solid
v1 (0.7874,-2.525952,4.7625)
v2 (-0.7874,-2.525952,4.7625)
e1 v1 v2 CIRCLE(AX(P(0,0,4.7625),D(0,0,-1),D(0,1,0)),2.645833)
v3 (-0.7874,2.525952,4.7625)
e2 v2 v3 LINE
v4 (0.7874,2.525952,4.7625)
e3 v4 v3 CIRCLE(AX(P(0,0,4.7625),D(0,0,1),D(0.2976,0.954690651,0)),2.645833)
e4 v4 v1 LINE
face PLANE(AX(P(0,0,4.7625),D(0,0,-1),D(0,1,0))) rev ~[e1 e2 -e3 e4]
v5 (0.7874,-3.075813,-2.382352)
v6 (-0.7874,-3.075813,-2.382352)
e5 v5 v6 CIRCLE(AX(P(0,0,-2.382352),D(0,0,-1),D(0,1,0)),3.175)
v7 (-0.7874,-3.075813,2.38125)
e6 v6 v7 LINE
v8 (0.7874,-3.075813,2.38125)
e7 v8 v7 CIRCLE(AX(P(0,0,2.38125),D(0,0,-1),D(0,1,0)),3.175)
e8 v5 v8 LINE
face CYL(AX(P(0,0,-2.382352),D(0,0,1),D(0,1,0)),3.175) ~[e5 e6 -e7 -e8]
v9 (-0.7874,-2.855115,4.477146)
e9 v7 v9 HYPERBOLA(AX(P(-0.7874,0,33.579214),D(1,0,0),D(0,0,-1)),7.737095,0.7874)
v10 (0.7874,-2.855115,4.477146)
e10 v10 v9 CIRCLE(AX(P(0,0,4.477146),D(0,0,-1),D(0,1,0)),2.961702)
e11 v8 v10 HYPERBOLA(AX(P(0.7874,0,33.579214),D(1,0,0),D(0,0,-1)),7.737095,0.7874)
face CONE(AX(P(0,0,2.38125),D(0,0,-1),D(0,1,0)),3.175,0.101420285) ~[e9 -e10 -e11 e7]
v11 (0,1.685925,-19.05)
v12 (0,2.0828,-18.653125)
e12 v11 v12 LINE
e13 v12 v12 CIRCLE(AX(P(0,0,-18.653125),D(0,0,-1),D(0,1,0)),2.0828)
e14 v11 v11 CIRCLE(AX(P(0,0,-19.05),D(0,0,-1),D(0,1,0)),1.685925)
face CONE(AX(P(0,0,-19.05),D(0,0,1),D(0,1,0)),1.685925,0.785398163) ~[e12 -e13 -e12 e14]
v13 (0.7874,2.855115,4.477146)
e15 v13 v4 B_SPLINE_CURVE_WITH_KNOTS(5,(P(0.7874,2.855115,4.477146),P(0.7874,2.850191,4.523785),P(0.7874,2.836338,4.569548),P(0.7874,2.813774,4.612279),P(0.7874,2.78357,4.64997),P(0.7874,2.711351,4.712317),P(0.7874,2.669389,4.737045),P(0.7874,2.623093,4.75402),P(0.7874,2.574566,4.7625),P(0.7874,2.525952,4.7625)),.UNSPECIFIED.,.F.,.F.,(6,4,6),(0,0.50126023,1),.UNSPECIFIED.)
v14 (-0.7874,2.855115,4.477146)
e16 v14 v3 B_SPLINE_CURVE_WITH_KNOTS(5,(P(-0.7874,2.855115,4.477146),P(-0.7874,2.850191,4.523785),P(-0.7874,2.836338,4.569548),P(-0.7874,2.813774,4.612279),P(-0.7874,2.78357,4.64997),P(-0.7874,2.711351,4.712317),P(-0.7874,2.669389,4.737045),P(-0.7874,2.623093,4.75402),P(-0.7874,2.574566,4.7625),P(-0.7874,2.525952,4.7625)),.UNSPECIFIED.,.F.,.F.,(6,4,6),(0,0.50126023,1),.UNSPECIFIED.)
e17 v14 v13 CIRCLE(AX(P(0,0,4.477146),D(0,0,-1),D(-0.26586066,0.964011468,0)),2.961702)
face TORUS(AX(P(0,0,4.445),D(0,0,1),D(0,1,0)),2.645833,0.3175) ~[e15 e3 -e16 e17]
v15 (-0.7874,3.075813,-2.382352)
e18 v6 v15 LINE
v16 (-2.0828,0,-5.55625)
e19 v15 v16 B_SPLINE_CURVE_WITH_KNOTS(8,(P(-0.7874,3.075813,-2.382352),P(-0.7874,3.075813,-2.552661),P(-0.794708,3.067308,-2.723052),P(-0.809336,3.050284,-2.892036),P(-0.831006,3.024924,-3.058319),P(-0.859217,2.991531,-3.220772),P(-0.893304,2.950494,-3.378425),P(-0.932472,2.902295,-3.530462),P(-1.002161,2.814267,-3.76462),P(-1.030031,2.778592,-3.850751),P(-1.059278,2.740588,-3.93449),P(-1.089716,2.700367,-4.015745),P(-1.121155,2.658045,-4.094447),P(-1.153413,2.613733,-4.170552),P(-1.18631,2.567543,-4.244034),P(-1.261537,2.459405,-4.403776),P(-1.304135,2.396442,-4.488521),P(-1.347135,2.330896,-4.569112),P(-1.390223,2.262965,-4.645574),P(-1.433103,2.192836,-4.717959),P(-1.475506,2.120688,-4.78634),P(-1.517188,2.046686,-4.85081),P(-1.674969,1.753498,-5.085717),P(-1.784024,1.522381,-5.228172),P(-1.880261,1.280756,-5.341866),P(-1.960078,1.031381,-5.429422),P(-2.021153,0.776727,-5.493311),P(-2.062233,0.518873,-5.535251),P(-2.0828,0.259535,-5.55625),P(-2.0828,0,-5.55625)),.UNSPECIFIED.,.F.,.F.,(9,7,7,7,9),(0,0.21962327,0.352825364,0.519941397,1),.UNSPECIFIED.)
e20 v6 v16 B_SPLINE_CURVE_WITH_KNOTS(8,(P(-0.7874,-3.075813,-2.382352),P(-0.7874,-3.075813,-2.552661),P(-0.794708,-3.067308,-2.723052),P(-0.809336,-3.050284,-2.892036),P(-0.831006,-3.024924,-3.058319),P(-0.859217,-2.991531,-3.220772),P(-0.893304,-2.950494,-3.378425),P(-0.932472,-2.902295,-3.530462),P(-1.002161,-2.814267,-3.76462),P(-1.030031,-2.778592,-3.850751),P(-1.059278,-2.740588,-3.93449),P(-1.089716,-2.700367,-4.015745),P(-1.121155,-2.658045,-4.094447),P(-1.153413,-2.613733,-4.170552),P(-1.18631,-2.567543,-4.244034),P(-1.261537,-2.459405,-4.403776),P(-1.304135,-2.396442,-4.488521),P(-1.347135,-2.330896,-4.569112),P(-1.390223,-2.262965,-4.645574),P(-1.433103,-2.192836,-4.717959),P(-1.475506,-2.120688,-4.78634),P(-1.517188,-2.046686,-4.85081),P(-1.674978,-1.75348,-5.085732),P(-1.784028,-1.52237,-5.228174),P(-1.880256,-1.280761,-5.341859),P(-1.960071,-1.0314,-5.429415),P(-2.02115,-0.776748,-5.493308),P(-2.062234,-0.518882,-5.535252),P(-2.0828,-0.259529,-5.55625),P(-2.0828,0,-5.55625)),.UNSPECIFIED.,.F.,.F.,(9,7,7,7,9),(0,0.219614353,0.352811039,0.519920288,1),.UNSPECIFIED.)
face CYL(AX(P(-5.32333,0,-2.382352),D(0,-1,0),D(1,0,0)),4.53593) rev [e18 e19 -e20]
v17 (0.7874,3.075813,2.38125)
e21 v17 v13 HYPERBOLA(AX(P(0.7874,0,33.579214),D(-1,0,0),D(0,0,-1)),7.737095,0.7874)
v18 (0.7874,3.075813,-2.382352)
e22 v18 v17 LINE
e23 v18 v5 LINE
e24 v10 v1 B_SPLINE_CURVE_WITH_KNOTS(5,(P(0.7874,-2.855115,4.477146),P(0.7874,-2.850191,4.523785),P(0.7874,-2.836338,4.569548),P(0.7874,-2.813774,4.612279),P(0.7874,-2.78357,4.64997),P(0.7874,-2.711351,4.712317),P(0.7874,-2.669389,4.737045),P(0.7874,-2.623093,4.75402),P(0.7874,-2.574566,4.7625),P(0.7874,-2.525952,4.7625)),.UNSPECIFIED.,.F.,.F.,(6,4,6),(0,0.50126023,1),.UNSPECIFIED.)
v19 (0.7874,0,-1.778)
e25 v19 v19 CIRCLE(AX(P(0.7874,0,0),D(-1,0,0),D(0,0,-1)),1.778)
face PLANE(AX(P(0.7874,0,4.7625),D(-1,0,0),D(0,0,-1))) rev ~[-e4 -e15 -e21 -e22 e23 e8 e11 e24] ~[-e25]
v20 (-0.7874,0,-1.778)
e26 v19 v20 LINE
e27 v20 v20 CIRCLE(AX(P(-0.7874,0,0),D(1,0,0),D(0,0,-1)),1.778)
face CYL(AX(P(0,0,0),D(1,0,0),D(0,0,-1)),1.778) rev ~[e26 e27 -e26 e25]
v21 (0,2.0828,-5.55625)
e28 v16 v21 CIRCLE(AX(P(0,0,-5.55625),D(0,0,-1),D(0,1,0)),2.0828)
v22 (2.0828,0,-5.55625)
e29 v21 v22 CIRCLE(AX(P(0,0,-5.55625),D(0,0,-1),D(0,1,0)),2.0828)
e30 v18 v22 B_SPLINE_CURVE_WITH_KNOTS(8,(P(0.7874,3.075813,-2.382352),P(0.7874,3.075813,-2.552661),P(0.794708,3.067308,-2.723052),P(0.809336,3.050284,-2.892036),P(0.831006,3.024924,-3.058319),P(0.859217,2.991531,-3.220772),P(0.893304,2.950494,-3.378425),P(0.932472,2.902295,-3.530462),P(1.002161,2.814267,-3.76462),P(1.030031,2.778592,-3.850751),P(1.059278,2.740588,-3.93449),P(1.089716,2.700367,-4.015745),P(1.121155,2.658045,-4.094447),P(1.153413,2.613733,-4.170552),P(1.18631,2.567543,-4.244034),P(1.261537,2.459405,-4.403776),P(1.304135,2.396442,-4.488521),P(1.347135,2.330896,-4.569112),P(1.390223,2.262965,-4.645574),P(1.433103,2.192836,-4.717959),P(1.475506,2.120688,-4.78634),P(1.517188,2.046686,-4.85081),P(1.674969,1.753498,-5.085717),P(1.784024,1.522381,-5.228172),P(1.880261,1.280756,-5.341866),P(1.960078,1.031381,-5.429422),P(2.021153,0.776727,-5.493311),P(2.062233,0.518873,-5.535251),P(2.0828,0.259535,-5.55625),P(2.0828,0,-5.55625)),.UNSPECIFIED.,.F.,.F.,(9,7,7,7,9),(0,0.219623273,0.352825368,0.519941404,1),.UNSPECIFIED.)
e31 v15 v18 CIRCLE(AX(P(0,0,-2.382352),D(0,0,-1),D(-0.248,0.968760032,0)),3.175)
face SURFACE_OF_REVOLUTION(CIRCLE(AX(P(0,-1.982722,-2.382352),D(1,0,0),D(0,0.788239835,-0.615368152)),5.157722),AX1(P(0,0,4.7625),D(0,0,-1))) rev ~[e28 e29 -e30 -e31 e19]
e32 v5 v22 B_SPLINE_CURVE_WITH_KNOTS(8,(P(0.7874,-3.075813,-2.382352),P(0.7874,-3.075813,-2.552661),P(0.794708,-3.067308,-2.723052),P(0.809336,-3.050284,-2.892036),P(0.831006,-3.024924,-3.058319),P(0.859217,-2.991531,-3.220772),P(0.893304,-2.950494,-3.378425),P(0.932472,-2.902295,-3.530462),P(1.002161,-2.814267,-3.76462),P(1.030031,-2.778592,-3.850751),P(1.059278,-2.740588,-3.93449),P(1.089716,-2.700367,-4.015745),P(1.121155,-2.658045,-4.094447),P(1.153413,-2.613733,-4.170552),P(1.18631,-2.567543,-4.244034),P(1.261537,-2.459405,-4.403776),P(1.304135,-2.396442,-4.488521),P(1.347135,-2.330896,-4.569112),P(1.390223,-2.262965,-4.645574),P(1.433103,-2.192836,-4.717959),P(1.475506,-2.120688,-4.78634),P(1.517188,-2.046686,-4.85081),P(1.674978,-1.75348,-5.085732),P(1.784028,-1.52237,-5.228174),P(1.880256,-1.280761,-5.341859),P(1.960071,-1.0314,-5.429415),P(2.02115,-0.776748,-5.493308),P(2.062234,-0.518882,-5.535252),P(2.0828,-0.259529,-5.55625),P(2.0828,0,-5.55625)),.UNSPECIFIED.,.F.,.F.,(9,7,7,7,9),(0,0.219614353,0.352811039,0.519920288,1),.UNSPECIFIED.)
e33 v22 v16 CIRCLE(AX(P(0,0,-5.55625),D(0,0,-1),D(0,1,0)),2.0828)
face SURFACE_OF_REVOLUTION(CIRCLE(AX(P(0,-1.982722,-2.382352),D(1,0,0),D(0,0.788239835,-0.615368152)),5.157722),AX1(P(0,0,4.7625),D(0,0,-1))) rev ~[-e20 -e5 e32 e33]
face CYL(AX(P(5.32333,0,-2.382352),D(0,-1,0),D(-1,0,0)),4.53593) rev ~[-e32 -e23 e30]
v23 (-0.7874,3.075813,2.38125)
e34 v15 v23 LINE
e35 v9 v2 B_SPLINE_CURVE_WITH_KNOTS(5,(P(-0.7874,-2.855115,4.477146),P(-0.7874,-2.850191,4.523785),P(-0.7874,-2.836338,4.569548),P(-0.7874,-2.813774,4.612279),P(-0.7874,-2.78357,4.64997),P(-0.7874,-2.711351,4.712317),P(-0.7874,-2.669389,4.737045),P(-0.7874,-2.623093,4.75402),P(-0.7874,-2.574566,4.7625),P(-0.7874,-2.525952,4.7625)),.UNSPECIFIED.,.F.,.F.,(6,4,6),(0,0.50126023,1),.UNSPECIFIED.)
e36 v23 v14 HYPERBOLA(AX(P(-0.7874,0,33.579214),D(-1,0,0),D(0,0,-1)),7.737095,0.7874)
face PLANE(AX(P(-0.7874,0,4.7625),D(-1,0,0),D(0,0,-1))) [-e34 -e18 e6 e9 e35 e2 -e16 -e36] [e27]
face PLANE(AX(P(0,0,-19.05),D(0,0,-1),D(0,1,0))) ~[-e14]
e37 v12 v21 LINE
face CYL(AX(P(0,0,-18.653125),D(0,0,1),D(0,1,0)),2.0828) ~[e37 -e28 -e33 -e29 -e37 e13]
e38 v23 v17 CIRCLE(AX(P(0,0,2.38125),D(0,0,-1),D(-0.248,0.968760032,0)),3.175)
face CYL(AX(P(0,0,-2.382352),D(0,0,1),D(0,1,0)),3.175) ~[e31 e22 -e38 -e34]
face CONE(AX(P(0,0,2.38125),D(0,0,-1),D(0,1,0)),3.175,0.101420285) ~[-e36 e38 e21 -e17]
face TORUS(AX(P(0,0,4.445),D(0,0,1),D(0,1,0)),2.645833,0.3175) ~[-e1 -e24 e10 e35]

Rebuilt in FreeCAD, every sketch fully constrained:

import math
import FreeCAD as App
import Part
import Sketcher

V = App.Vector
Q = App.Units.Quantity

doc = App.newDocument("Part")
params = doc.addObject("Spreadsheet::Sheet", "Params")
for row, (alias, value) in enumerate([
    ("sketch1_height", "0.515625 in"),
    ("sketch1_height2", "0.9375 in"),
    ("revolution_angle", "360 deg"),
    ("sketch2_width", "0.125 in"),
    ("sketch2_width2", "0.074 in"),
    ("sketch2_height", "0.40625 in"),
    ("sketch3_diameter", "0.14 in"),
], start=1):
    params.set(f"A{row}", alias)
    params.set(f"B{row}", "=" + value)
    params.setAlias(f"B{row}", alias)

body = doc.addObject("PartDesign::Body", "Body")

sketch1 = body.newObject("Sketcher::SketchObject", "Sketch")
sketch1.AttachmentSupport = (doc.getObject("YZ_Plane"), [""])
sketch1.MapMode = "FlatFace"
sketch1.addGeometry([
    Part.LineSegment(V(0, -19.05, 0), V(1.69, -19.05, 0)),
    Part.LineSegment(V(1.69, -19.05, 0), V(2.08, -18.65, 0)),
    Part.LineSegment(V(2.08, -18.65, 0), V(2.08, -5.56, 0)),
    Part.ArcOfCircle(Part.Circle(V(-1.98, -2.38, 0), V(0, 0, 1), 5.16), math.radians(-38), math.radians(0)),
    Part.LineSegment(V(3.17, -2.38, 0), V(3.17, 2.38, 0)),
    Part.LineSegment(V(3.17, 2.38, 0), V(2.96, 4.48, 0)),
    Part.ArcOfCircle(Part.Circle(V(2.65, 4.45, 0), V(0, 0, 1), 0.32), math.radians(6), math.radians(90)),
    Part.LineSegment(V(2.65, 4.76, 0), V(0, 4.76, 0)),
    Part.LineSegment(V(0, 4.76, 0), V(0, -19.05, 0)),
], False)
sketch1.addConstraint([
    Sketcher.Constraint("Coincident", 0, 2, 1, 1),
    Sketcher.Constraint("Coincident", 1, 2, 2, 1),
    Sketcher.Constraint("Coincident", 2, 2, 3, 1),
    Sketcher.Constraint("Tangent", 3, 2, 4, 1),
    Sketcher.Constraint("Coincident", 4, 2, 5, 1),
    Sketcher.Constraint("Tangent", 5, 2, 6, 1),
    Sketcher.Constraint("Tangent", 6, 2, 7, 1),
    Sketcher.Constraint("Coincident", 7, 2, 8, 1),
    Sketcher.Constraint("Coincident", 8, 2, 0, 1),
    Sketcher.Constraint("Horizontal", 0),
    Sketcher.Constraint("Vertical", 2),
    Sketcher.Constraint("Vertical", 4),
    Sketcher.Constraint("Horizontal", 7),
    Sketcher.Constraint("Vertical", 8),
    Sketcher.Constraint("PointOnObject", 7, 2, -2),
    Sketcher.Constraint("Angle", 1, Q("45 deg")),
    Sketcher.Constraint("Radius", 6, Q("0.0125 in")),
    Sketcher.Constraint("DistanceY", 2, 1, 2, 2, Q("0.515625 in")),
    Sketcher.Constraint("DistanceY", 8, 2, 8, 1, Q("0.9375 in")),
    Sketcher.Constraint("DistanceY", 0, 2, -1, 1, Q("0.75 in")),
    Sketcher.Constraint("DistanceX", -1, 1, 1, 2, Q("0.082 in")),
    Sketcher.Constraint("DistanceY", 1, 2, -1, 1, Q("0.734375 in")),
    Sketcher.Constraint("DistanceX", -1, 1, 3, 2, Q("0.125 in")),
    Sketcher.Constraint("DistanceY", -1, 1, 4, 2, Q("0.09375 in")),
    Sketcher.Constraint("Radius", 3, Q("5.157722 mm")),
    Sketcher.Constraint("DistanceX", -1, 1, 5, 2, Q("2.961702 mm")),
])
sketch1.setExpression("Constraints[17]", "Params.sketch1_height")
sketch1.setExpression("Constraints[18]", "Params.sketch1_height2")
revolution = body.newObject("PartDesign::Revolution", "Revolution")
revolution.Profile = sketch1
revolution.ReferenceAxis = (sketch1, ["V_Axis"])
revolution.setExpression("Angle", "Params.revolution_angle")

sketch2 = body.newObject("Sketcher::SketchObject", "Sketch001")
sketch2.AttachmentSupport = (doc.getObject("XZ_Plane"), [""])
sketch2.MapMode = "FlatFace"
sketch2.addGeometry([
    Part.LineSegment(V(-4, -5.6, 0), V(-4, 4.8, 0)),
    Part.LineSegment(V(-4, 4.8, 0), V(-0.8, 4.8, 0)),
    Part.LineSegment(V(-0.8, 4.8, 0), V(-0.8, -2.4, 0)),
    Part.ArcOfCircle(Part.Circle(V(-5.3, -2.4, 0), V(0, 0, 1), 4.5), math.radians(-44), math.radians(0)),
    Part.LineSegment(V(-2.1, -5.6, 0), V(-4, -5.6, 0)),
    Part.LineSegment(V(4, -5.6, 0), V(2.1, -5.6, 0)),
    Part.ArcOfCircle(Part.Circle(V(5.3, -2.4, 0), V(0, 0, 1), 4.5), math.radians(180), math.radians(224)),
    Part.LineSegment(V(0.8, -2.4, 0), V(0.8, 4.8, 0)),
    Part.LineSegment(V(0.8, 4.8, 0), V(4, 4.8, 0)),
    Part.LineSegment(V(4, 4.8, 0), V(4, -5.6, 0)),
], False)
sketch2.addConstraint([
    Sketcher.Constraint("Coincident", 0, 2, 1, 1),
    Sketcher.Constraint("Coincident", 1, 2, 2, 1),
    Sketcher.Constraint("Tangent", 2, 2, 3, 2),
    Sketcher.Constraint("Coincident", 3, 1, 4, 1),
    Sketcher.Constraint("Coincident", 4, 2, 0, 1),
    Sketcher.Constraint("Coincident", 5, 2, 6, 2),
    Sketcher.Constraint("Tangent", 6, 1, 7, 1),
    Sketcher.Constraint("Coincident", 7, 2, 8, 1),
    Sketcher.Constraint("Coincident", 8, 2, 9, 1),
    Sketcher.Constraint("Coincident", 9, 2, 5, 1),
    Sketcher.Constraint("Vertical", 0),
    Sketcher.Constraint("Horizontal", 1),
    Sketcher.Constraint("Vertical", 2),
    Sketcher.Constraint("Horizontal", 4),
    Sketcher.Constraint("Horizontal", 5),
    Sketcher.Constraint("Vertical", 7),
    Sketcher.Constraint("Horizontal", 8),
    Sketcher.Constraint("Vertical", 9),
    Sketcher.Constraint("Equal", 3, 6),
    Sketcher.Constraint("Symmetric", 3, 3, 6, 3, -2),
    Sketcher.Constraint("Symmetric", 0, 2, 8, 2, -2),
    Sketcher.Constraint("Horizontal", 4, 2, 5, 2),
    Sketcher.Constraint("DistanceX", 1, 1, 1, 2, Q("0.125 in")),
    Sketcher.Constraint("DistanceX", 4, 2, 4, 1, Q("0.074 in")),
    Sketcher.Constraint("DistanceY", 0, 1, 0, 2, Q("0.40625 in")),
    Sketcher.Constraint("DistanceX", 0, 2, -1, 1, Q("0.156 in")),
    Sketcher.Constraint("DistanceY", -1, 1, 0, 2, Q("0.1875 in")),
    Sketcher.Constraint("Radius", 3, Q("4.53593 mm")),
])
sketch2.setExpression("Constraints[22]", "Params.sketch2_width")
sketch2.setExpression("Constraints[23]", "Params.sketch2_width2")
sketch2.setExpression("Constraints[24]", "Params.sketch2_height")
pocket1 = body.newObject("PartDesign::Pocket", "Pocket")
pocket1.Profile = sketch2
pocket1.Type = "ThroughAll"
pocket1.Midplane = True

sketch3 = body.newObject("Sketcher::SketchObject", "Sketch002")
sketch3.AttachmentSupport = (doc.getObject("YZ_Plane"), [""])
sketch3.MapMode = "FlatFace"
sketch3.addGeometry(Part.Circle(V(0, 0, 0), V(0, 0, 1), 1.8), False)
sketch3.addConstraint([
    Sketcher.Constraint("Coincident", 0, 3, -1, 1),
    Sketcher.Constraint("Diameter", 0, Q("0.14 in")),
])
sketch3.setExpression("Constraints[1]", "Params.sketch3_diameter")
pocket2 = body.newObject("PartDesign::Pocket", "Pocket001")
pocket2.Profile = sketch3
pocket2.Type = "ThroughAll"
pocket2.Midplane = True

doc.recompute()
